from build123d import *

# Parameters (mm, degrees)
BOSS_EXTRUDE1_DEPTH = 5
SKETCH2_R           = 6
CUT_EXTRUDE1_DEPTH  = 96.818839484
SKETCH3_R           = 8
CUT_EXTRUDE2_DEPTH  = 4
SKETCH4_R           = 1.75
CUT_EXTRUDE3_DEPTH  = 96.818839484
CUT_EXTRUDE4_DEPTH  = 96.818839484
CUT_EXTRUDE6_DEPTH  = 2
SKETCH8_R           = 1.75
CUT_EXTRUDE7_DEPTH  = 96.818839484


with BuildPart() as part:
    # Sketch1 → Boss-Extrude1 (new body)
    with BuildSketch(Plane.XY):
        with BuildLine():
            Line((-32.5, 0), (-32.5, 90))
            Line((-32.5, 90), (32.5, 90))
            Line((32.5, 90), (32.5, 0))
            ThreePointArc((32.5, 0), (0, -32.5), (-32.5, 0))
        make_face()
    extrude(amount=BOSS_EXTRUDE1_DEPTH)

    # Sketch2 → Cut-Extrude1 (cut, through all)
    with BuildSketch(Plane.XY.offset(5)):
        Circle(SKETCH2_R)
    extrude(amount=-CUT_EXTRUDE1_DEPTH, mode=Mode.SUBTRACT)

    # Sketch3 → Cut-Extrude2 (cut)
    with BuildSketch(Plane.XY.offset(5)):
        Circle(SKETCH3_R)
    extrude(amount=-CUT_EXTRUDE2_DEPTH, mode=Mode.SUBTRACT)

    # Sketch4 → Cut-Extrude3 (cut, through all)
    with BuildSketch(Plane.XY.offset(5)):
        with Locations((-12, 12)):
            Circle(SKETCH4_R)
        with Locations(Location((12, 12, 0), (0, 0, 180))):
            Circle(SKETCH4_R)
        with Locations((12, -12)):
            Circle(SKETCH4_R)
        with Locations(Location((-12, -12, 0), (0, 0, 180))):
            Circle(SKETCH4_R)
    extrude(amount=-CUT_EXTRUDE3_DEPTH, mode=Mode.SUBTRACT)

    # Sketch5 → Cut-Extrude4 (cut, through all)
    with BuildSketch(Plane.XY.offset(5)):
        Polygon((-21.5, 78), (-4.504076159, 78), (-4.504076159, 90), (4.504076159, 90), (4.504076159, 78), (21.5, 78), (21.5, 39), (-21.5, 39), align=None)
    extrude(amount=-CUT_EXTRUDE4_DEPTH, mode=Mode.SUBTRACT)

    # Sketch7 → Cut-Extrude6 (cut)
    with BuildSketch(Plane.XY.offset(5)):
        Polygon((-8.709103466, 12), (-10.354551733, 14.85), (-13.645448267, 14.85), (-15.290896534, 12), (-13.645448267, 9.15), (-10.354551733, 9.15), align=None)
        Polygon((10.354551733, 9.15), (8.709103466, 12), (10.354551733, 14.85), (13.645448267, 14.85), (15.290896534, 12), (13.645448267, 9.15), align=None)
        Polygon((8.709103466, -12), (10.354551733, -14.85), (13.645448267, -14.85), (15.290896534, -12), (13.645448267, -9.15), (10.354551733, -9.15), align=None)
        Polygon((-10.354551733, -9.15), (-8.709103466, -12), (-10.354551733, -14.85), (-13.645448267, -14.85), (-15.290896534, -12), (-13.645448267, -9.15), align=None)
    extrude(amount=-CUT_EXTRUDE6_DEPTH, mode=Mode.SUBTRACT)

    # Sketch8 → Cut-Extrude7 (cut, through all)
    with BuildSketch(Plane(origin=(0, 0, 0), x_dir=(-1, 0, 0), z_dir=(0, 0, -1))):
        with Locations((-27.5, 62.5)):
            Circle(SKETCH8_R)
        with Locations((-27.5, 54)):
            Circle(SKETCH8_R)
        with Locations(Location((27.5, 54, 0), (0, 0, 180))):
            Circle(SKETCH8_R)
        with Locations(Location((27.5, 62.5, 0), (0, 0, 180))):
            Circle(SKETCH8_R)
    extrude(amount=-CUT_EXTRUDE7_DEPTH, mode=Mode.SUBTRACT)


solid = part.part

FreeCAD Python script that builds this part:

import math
import FreeCAD as App
import Part
import Sketcher
from FreeCAD import Vector
Q = App.Units.Quantity

doc = App.newDocument("Part")
body = doc.addObject("PartDesign::Body", "Body")

sketch1 = body.newObject("Sketcher::SketchObject", "Sketch")
sketch1.AttachmentSupport = (doc.getObject("XY_Plane"), [""])
sketch1.MapMode = "FlatFace"
sketch1.addGeometry(Part.LineSegment(Vector(-32, 90, 0), Vector(-32, 0, 0)), False)
sketch1.addGeometry(Part.ArcOfCircle(Part.Circle(Vector(0, 0, 0), Vector(0, 0, 1), 32), math.radians(180), math.radians(360)), False)
sketch1.addGeometry(Part.LineSegment(Vector(32, 0, 0), Vector(32, 90, 0)), False)
sketch1.addGeometry(Part.LineSegment(Vector(32, 90, 0), Vector(-32, 90, 0)), False)
sketch1.addConstraint(Sketcher.Constraint("Tangent", 0, 2, 1, 1))
sketch1.addConstraint(Sketcher.Constraint("Tangent", 1, 2, 2, 1))
sketch1.addConstraint(Sketcher.Constraint("Coincident", 2, 2, 3, 1))
sketch1.addConstraint(Sketcher.Constraint("Coincident", 3, 2, 0, 1))
sketch1.addConstraint(Sketcher.Constraint("Vertical", 0))
sketch1.addConstraint(Sketcher.Constraint("Vertical", 2))
sketch1.addConstraint(Sketcher.Constraint("Horizontal", 3))
sketch1.addConstraint(Sketcher.Constraint("Coincident", 1, 3, -1, 1))
sketch1.addConstraint(Sketcher.Constraint("Radius", 1, 32.5))
sketch1.addConstraint(Sketcher.Constraint("DistanceY", 0, 2, 0, 1, 90.0))
pad1 = body.newObject("PartDesign::Pad", "Pad")
pad1.Profile = sketch1
pad1.Length = 5

sketch2 = body.newObject("Sketcher::SketchObject", "Sketch001")
sketch2.AttachmentSupport = (doc.getObject("XY_Plane"), [""])
sketch2.MapMode = "FlatFace"
sketch2.AttachmentOffset = App.Placement(Vector(0, 0, 5), App.Rotation())
sketch2.addGeometry(Part.Circle(Vector(0, 0, 0), Vector(0, 0, 1), 6), False)
sketch2.addConstraint(Sketcher.Constraint("Coincident", 0, 3, -1, 1))
sketch2.addConstraint(Sketcher.Constraint("Diameter", 0, 12.0))
pocket1 = body.newObject("PartDesign::Pocket", "Pocket")
pocket1.Profile = sketch2
pocket1.Type = "ThroughAll"

sketch3 = body.newObject("Sketcher::SketchObject", "Sketch002")
sketch3.AttachmentSupport = (doc.getObject("XY_Plane"), [""])
sketch3.MapMode = "FlatFace"
sketch3.AttachmentOffset = App.Placement(Vector(0, 0, 5), App.Rotation())
sketch3.addGeometry(Part.Circle(Vector(0, 0, 0), Vector(0, 0, 1), 8), False)
sketch3.addConstraint(Sketcher.Constraint("Coincident", 0, 3, -1, 1))
sketch3.addConstraint(Sketcher.Constraint("Diameter", 0, 16.0))
pocket2 = body.newObject("PartDesign::Pocket", "Pocket001")
pocket2.Profile = sketch3
pocket2.Length = 4

sketch4 = body.newObject("Sketcher::SketchObject", "Sketch003")
sketch4.AttachmentSupport = (doc.getObject("XY_Plane"), [""])
sketch4.MapMode = "FlatFace"
sketch4.AttachmentOffset = App.Placement(Vector(0, 0, 5), App.Rotation())
sketch4.addGeometry(Part.Circle(Vector(-12, 12, 0), Vector(0, 0, 1), 1.8), False)
sketch4.addGeometry(Part.Circle(Vector(12, 12, 0), Vector(0, 0, 1), 1.8), False)
sketch4.addGeometry(Part.Circle(Vector(12, -12, 0), Vector(0, 0, 1), 1.8), False)
sketch4.addGeometry(Part.Circle(Vector(-12, -12, 0), Vector(0, 0, 1), 1.8), False)
sketch4.addConstraint(Sketcher.Constraint("Equal", 0, 1))
sketch4.addConstraint(Sketcher.Constraint("Equal", 1, 2))
sketch4.addConstraint(Sketcher.Constraint("Equal", 2, 3))
sketch4.addConstraint(Sketcher.Constraint("Symmetric", 0, 3, 2, 3, -1, 1))
sketch4.addConstraint(Sketcher.Constraint("Symmetric", 1, 3, 3, 3, -1, 1))
sketch4.addConstraint(Sketcher.Constraint("Symmetric", 0, 3, 1, 3, -2))
sketch4.addConstraint(Sketcher.Constraint("Diameter", 0, 3.5))
sketch4.addConstraint(Sketcher.Constraint("DistanceX", 0, 3, -1, 1, 12.0))
sketch4.addConstraint(Sketcher.Constraint("DistanceY", -1, 1, 0, 3, 12.0))
pocket3 = body.newObject("PartDesign::Pocket", "Pocket002")
pocket3.Profile = sketch4
pocket3.Type = "ThroughAll"

sketch5 = body.newObject("Sketcher::SketchObject", "Sketch004")
sketch5.AttachmentSupport = (doc.getObject("XY_Plane"), [""])
sketch5.MapMode = "FlatFace"
sketch5.AttachmentOffset = App.Placement(Vector(0, 0, 5), App.Rotation())
sketch5.addGeometry(Part.LineSegment(Vector(-5, 78, 0), Vector(-22, 78, 0)), False)
sketch5.addGeometry(Part.LineSegment(Vector(-22, 78, 0), Vector(-22, 39, 0)), False)
sketch5.addGeometry(Part.LineSegment(Vector(-22, 39, 0), Vector(22, 39, 0)), False)
sketch5.addGeometry(Part.LineSegment(Vector(22, 39, 0), Vector(22, 78, 0)), False)
sketch5.addGeometry(Part.LineSegment(Vector(22, 78, 0), Vector(5, 78, 0)), False)
sketch5.addGeometry(Part.LineSegment(Vector(5, 78, 0), Vector(5, 90, 0)), False)
sketch5.addGeometry(Part.LineSegment(Vector(5, 90, 0), Vector(-5, 90, 0)), False)
sketch5.addGeometry(Part.LineSegment(Vector(-5, 90, 0), Vector(-5, 78, 0)), False)
sketch5.addConstraint(Sketcher.Constraint("Coincident", 0, 2, 1, 1))
sketch5.addConstraint(Sketcher.Constraint("Coincident", 1, 2, 2, 1))
sketch5.addConstraint(Sketcher.Constraint("Coincident", 2, 2, 3, 1))
sketch5.addConstraint(Sketcher.Constraint("Coincident", 3, 2, 4, 1))
sketch5.addConstraint(Sketcher.Constraint("Coincident", 4, 2, 5, 1))
sketch5.addConstraint(Sketcher.Constraint("Coincident", 5, 2, 6, 1))
sketch5.addConstraint(Sketcher.Constraint("Coincident", 6, 2, 7, 1))
sketch5.addConstraint(Sketcher.Constraint("Coincident", 7, 2, 0, 1))
sketch5.addConstraint(Sketcher.Constraint("Horizontal", 0))
sketch5.addConstraint(Sketcher.Constraint("Vertical", 1))
sketch5.addConstraint(Sketcher.Constraint("Horizontal", 2))
sketch5.addConstraint(Sketcher.Constraint("Vertical", 3))
sketch5.addConstraint(Sketcher.Constraint("Horizontal", 4))
sketch5.addConstraint(Sketcher.Constraint("Vertical", 5))
sketch5.addConstraint(Sketcher.Constraint("Horizontal", 6))
sketch5.addConstraint(Sketcher.Constraint("Vertical", 7))
sketch5.addConstraint(Sketcher.Constraint("Symmetric", 0, 2, 3, 2, -2))
sketch5.addConstraint(Sketcher.Constraint("Equal", 0, 4))
sketch5.addConstraint(Sketcher.Constraint("DistanceX", 2, 1, 2, 2, 43.0))
sketch5.addConstraint(Sketcher.Constraint("DistanceY", 1, 2, 1, 1, 39.0))
sketch5.addConstraint(Sketcher.Constraint("DistanceY", 5, 1, 5, 2, 12.0))
sketch5.addConstraint(Sketcher.Constraint("DistanceY", -1, 1, 0, 2, 78.0))
sketch5.addConstraint(Sketcher.Constraint("DistanceX", 0, 2, 0, 1, 16.995924))
pocket4 = body.newObject("PartDesign::Pocket", "Pocket003")
pocket4.Profile = sketch5
pocket4.Type = "ThroughAll"

sketch6 = body.newObject("Sketcher::SketchObject", "Sketch005")
sketch6.AttachmentSupport = (doc.getObject("XY_Plane"), [""])
sketch6.MapMode = "FlatFace"
sketch6.AttachmentOffset = App.Placement(Vector(0, 0, 5), App.Rotation())
sketch6.addGeometry(Part.LineSegment(Vector(-8.7, 12, 0), Vector(-10.4, 14.8, 0)), False)
sketch6.addGeometry(Part.LineSegment(Vector(-10.4, 14.8, 0), Vector(-13.6, 14.8, 0)), False)
sketch6.addGeometry(Part.LineSegment(Vector(-13.6, 14.8, 0), Vector(-15.3, 12, 0)), False)
sketch6.addGeometry(Part.LineSegment(Vector(-15.3, 12, 0), Vector(-13.6, 9.2, 0)), False)
sketch6.addGeometry(Part.LineSegment(Vector(-13.6, 9.2, 0), Vector(-10.4, 9.2, 0)), False)
sketch6.addGeometry(Part.LineSegment(Vector(-10.4, 9.2, 0), Vector(-8.7, 12, 0)), False)
sketch6.addGeometry(Part.LineSegment(Vector(8.7, 12, 0), Vector(10.4, 9.2, 0)), False)
sketch6.addGeometry(Part.LineSegment(Vector(10.4, 9.2, 0), Vector(13.6, 9.2, 0)), False)
sketch6.addGeometry(Part.LineSegment(Vector(13.6, 9.2, 0), Vector(15.3, 12, 0)), False)
sketch6.addGeometry(Part.LineSegment(Vector(15.3, 12, 0), Vector(13.6, 14.8, 0)), False)
sketch6.addGeometry(Part.LineSegment(Vector(13.6, 14.8, 0), Vector(10.4, 14.8, 0)), False)
sketch6.addGeometry(Part.LineSegment(Vector(10.4, 14.8, 0), Vector(8.7, 12, 0)), False)
sketch6.addGeometry(Part.LineSegment(Vector(8.7, -12, 0), Vector(10.4, -14.8, 0)), False)
sketch6.addGeometry(Part.LineSegment(Vector(10.4, -14.8, 0), Vector(13.6, -14.8, 0)), False)
sketch6.addGeometry(Part.LineSegment(Vector(13.6, -14.8, 0), Vector(15.3, -12, 0)), False)
sketch6.addGeometry(Part.LineSegment(Vector(15.3, -12, 0), Vector(13.6, -9.2, 0)), False)
sketch6.addGeometry(Part.LineSegment(Vector(13.6, -9.2, 0), Vector(10.4, -9.2, 0)), False)
sketch6.addGeometry(Part.LineSegment(Vector(10.4, -9.2, 0), Vector(8.7, -12, 0)), False)
sketch6.addGeometry(Part.LineSegment(Vector(-8.7, -12, 0), Vector(-10.4, -9.2, 0)), False)
sketch6.addGeometry(Part.LineSegment(Vector(-10.4, -9.2, 0), Vector(-13.6, -9.2, 0)), False)
sketch6.addGeometry(Part.LineSegment(Vector(-13.6, -9.2, 0), Vector(-15.3, -12, 0)), False)
sketch6.addGeometry(Part.LineSegment(Vector(-15.3, -12, 0), Vector(-13.6, -14.8, 0)), False)
sketch6.addGeometry(Part.LineSegment(Vector(-13.6, -14.8, 0), Vector(-10.4, -14.8, 0)), False)
sketch6.addGeometry(Part.LineSegment(Vector(-10.4, -14.8, 0), Vector(-8.7, -12, 0)), False)
sketch6.addConstraint(Sketcher.Constraint("Coincident", 0, 2, 1, 1))
sketch6.addConstraint(Sketcher.Constraint("Coincident", 1, 2, 2, 1))
sketch6.addConstraint(Sketcher.Constraint("Coincident", 2, 2, 3, 1))
sketch6.addConstraint(Sketcher.Constraint("Coincident", 3, 2, 4, 1))
sketch6.addConstraint(Sketcher.Constraint("Coincident", 4, 2, 5, 1))
sketch6.addConstraint(Sketcher.Constraint("Coincident", 5, 2, 0, 1))
sketch6.addConstraint(Sketcher.Constraint("Coincident", 6, 2, 7, 1))
sketch6.addConstraint(Sketcher.Constraint("Coincident", 7, 2, 8, 1))
sketch6.addConstraint(Sketcher.Constraint("Coincident", 8, 2, 9, 1))
sketch6.addConstraint(Sketcher.Constraint("Coincident", 9, 2, 10, 1))
sketch6.addConstraint(Sketcher.Constraint("Coincident", 10, 2, 11, 1))
sketch6.addConstraint(Sketcher.Constraint("Coincident", 11, 2, 6, 1))
sketch6.addConstraint(Sketcher.Constraint("Coincident", 12, 2, 13, 1))
sketch6.addConstraint(Sketcher.Constraint("Coincident", 13, 2, 14, 1))
sketch6.addConstraint(Sketcher.Constraint("Coincident", 14, 2, 15, 1))
sketch6.addConstraint(Sketcher.Constraint("Coincident", 15, 2, 16, 1))
sketch6.addConstraint(Sketcher.Constraint("Coincident", 16, 2, 17, 1))
sketch6.addConstraint(Sketcher.Constraint("Coincident", 17, 2, 12, 1))
sketch6.addConstraint(Sketcher.Constraint("Coincident", 18, 2, 19, 1))
sketch6.addConstraint(Sketcher.Constraint("Coincident", 19, 2, 20, 1))
sketch6.addConstraint(Sketcher.Constraint("Coincident", 20, 2, 21, 1))
sketch6.addConstraint(Sketcher.Constraint("Coincident", 21, 2, 22, 1))
sketch6.addConstraint(Sketcher.Constraint("Coincident", 22, 2, 23, 1))
sketch6.addConstraint(Sketcher.Constraint("Coincident", 23, 2, 18, 1))
sketch6.addConstraint(Sketcher.Constraint("Horizontal", 1))
sketch6.addConstraint(Sketcher.Constraint("Horizontal", 4))
sketch6.addConstraint(Sketcher.Constraint("Horizontal", 7))
sketch6.addConstraint(Sketcher.Constraint("Horizontal", 10))
sketch6.addConstraint(Sketcher.Constraint("Horizontal", 13))
sketch6.addConstraint(Sketcher.Constraint("Horizontal", 16))
sketch6.addConstraint(Sketcher.Constraint("Horizontal", 19))
sketch6.addConstraint(Sketcher.Constraint("Horizontal", 22))
sketch6.addConstraint(Sketcher.Constraint("Symmetric", 0, 2, 12, 2, -1, 1))
sketch6.addConstraint(Sketcher.Constraint("Symmetric", 2, 2, 14, 2, -1, 1))
sketch6.addConstraint(Sketcher.Constraint("Symmetric", 3, 2, 15, 2, -1, 1))
sketch6.addConstraint(Sketcher.Constraint("Symmetric", 5, 2, 17, 2, -1, 1))
sketch6.addConstraint(Sketcher.Constraint("Symmetric", 6, 2, 18, 2, -1, 1))
sketch6.addConstraint(Sketcher.Constraint("Symmetric", 8, 2, 20, 2, -1, 1))
sketch6.addConstraint(Sketcher.Constraint("Symmetric", 9, 2, 21, 2, -1, 1))
sketch6.addConstraint(Sketcher.Constraint("Symmetric", 11, 2, 23, 2, -1, 1))
sketch6.addConstraint(Sketcher.Constraint("Symmetric", 4, 2, 6, 2, -2))
sketch6.addConstraint(Sketcher.Constraint("Symmetric", 2, 2, 8, 2, -2))
sketch6.addConstraint(Sketcher.Constraint("Symmetric", 1, 2, 9, 2, -2))
sketch6.addConstraint(Sketcher.Constraint("Symmetric", 5, 2, 11, 2, -2))
sketch6.addConstraint(Sketcher.Constraint("Parallel", 0, 3))
sketch6.addConstraint(Sketcher.Constraint("Parallel", 2, 5))
sketch6.addConstraint(Sketcher.Constraint("Parallel", 3, 6))
sketch6.addConstraint(Sketcher.Constraint("Parallel", 5, 8))
sketch6.addConstraint(Sketcher.Constraint("Parallel", 8, 11))
sketch6.addConstraint(Sketcher.Constraint("Parallel", 11, 14))
sketch6.addConstraint(Sketcher.Constraint("Parallel", 14, 17))
sketch6.addConstraint(Sketcher.Constraint("Parallel", 17, 20))
sketch6.addConstraint(Sketcher.Constraint("Parallel", 20, 23))
sketch6.addConstraint(Sketcher.Constraint("Horizontal", 2, 2, 5, 2))
sketch6.addConstraint(Sketcher.Constraint("Vertical", 1, 2, 3, 2))
sketch6.addConstraint(Sketcher.Constraint("Angle", 0, Q("120 deg")))
sketch6.addConstraint(Sketcher.Constraint("DistanceY", -1, 1, 2, 2, 12.0))
sketch6.addConstraint(Sketcher.Constraint("DistanceX", 3, 2, 6, 2, 24.0))
sketch6.addConstraint(Sketcher.Constraint("DistanceY", 3, 2, 1, 2, 5.7))
sketch6.addConstraint(Sketcher.Constraint("DistanceX", 1, 2, 1, 1, 3.290897))
pocket5 = body.newObject("PartDesign::Pocket", "Pocket004")
pocket5.Profile = sketch6
pocket5.Length = 2

sketch7 = body.newObject("Sketcher::SketchObject", "Sketch006")
sketch7.AttachmentSupport = (doc.getObject("XY_Plane"), [""])
sketch7.MapMode = "FlatFace"
sketch7.addGeometry(Part.Circle(Vector(27.5, 62.5, 0), Vector(0, 0, 1), 1.8), False)
sketch7.addGeometry(Part.Circle(Vector(27.5, 54, 0), Vector(0, 0, 1), 1.8), False)
sketch7.addGeometry(Part.Circle(Vector(-27.5, 54, 0), Vector(0, 0, 1), 1.8), False)
sketch7.addGeometry(Part.Circle(Vector(-27.5, 62.5, 0), Vector(0, 0, 1), 1.8), False)
sketch7.addConstraint(Sketcher.Constraint("Equal", 0, 1))
sketch7.addConstraint(Sketcher.Constraint("Equal", 1, 2))
sketch7.addConstraint(Sketcher.Constraint("Equal", 2, 3))
sketch7.addConstraint(Sketcher.Constraint("Symmetric", 1, 3, 2, 3, -2))
sketch7.addConstraint(Sketcher.Constraint("Symmetric", 0, 3, 3, 3, -2))
sketch7.addConstraint(Sketcher.Constraint("Vertical", 0, 3, 1, 3))
sketch7.addConstraint(Sketcher.Constraint("Diameter", 0, 3.5))
sketch7.addConstraint(Sketcher.Constraint("DistanceY", -1, 1, 1, 3, 54.0))
sketch7.addConstraint(Sketcher.Constraint("DistanceX", 2, 3, 1, 3, 55.0))
sketch7.addConstraint(Sketcher.Constraint("DistanceY", -1, 1, 0, 3, 62.5))
pocket6 = body.newObject("PartDesign::Pocket", "Pocket005")
pocket6.Profile = sketch7
pocket6.Type = "ThroughAll"
pocket6.Reversed = True

doc.recompute()
